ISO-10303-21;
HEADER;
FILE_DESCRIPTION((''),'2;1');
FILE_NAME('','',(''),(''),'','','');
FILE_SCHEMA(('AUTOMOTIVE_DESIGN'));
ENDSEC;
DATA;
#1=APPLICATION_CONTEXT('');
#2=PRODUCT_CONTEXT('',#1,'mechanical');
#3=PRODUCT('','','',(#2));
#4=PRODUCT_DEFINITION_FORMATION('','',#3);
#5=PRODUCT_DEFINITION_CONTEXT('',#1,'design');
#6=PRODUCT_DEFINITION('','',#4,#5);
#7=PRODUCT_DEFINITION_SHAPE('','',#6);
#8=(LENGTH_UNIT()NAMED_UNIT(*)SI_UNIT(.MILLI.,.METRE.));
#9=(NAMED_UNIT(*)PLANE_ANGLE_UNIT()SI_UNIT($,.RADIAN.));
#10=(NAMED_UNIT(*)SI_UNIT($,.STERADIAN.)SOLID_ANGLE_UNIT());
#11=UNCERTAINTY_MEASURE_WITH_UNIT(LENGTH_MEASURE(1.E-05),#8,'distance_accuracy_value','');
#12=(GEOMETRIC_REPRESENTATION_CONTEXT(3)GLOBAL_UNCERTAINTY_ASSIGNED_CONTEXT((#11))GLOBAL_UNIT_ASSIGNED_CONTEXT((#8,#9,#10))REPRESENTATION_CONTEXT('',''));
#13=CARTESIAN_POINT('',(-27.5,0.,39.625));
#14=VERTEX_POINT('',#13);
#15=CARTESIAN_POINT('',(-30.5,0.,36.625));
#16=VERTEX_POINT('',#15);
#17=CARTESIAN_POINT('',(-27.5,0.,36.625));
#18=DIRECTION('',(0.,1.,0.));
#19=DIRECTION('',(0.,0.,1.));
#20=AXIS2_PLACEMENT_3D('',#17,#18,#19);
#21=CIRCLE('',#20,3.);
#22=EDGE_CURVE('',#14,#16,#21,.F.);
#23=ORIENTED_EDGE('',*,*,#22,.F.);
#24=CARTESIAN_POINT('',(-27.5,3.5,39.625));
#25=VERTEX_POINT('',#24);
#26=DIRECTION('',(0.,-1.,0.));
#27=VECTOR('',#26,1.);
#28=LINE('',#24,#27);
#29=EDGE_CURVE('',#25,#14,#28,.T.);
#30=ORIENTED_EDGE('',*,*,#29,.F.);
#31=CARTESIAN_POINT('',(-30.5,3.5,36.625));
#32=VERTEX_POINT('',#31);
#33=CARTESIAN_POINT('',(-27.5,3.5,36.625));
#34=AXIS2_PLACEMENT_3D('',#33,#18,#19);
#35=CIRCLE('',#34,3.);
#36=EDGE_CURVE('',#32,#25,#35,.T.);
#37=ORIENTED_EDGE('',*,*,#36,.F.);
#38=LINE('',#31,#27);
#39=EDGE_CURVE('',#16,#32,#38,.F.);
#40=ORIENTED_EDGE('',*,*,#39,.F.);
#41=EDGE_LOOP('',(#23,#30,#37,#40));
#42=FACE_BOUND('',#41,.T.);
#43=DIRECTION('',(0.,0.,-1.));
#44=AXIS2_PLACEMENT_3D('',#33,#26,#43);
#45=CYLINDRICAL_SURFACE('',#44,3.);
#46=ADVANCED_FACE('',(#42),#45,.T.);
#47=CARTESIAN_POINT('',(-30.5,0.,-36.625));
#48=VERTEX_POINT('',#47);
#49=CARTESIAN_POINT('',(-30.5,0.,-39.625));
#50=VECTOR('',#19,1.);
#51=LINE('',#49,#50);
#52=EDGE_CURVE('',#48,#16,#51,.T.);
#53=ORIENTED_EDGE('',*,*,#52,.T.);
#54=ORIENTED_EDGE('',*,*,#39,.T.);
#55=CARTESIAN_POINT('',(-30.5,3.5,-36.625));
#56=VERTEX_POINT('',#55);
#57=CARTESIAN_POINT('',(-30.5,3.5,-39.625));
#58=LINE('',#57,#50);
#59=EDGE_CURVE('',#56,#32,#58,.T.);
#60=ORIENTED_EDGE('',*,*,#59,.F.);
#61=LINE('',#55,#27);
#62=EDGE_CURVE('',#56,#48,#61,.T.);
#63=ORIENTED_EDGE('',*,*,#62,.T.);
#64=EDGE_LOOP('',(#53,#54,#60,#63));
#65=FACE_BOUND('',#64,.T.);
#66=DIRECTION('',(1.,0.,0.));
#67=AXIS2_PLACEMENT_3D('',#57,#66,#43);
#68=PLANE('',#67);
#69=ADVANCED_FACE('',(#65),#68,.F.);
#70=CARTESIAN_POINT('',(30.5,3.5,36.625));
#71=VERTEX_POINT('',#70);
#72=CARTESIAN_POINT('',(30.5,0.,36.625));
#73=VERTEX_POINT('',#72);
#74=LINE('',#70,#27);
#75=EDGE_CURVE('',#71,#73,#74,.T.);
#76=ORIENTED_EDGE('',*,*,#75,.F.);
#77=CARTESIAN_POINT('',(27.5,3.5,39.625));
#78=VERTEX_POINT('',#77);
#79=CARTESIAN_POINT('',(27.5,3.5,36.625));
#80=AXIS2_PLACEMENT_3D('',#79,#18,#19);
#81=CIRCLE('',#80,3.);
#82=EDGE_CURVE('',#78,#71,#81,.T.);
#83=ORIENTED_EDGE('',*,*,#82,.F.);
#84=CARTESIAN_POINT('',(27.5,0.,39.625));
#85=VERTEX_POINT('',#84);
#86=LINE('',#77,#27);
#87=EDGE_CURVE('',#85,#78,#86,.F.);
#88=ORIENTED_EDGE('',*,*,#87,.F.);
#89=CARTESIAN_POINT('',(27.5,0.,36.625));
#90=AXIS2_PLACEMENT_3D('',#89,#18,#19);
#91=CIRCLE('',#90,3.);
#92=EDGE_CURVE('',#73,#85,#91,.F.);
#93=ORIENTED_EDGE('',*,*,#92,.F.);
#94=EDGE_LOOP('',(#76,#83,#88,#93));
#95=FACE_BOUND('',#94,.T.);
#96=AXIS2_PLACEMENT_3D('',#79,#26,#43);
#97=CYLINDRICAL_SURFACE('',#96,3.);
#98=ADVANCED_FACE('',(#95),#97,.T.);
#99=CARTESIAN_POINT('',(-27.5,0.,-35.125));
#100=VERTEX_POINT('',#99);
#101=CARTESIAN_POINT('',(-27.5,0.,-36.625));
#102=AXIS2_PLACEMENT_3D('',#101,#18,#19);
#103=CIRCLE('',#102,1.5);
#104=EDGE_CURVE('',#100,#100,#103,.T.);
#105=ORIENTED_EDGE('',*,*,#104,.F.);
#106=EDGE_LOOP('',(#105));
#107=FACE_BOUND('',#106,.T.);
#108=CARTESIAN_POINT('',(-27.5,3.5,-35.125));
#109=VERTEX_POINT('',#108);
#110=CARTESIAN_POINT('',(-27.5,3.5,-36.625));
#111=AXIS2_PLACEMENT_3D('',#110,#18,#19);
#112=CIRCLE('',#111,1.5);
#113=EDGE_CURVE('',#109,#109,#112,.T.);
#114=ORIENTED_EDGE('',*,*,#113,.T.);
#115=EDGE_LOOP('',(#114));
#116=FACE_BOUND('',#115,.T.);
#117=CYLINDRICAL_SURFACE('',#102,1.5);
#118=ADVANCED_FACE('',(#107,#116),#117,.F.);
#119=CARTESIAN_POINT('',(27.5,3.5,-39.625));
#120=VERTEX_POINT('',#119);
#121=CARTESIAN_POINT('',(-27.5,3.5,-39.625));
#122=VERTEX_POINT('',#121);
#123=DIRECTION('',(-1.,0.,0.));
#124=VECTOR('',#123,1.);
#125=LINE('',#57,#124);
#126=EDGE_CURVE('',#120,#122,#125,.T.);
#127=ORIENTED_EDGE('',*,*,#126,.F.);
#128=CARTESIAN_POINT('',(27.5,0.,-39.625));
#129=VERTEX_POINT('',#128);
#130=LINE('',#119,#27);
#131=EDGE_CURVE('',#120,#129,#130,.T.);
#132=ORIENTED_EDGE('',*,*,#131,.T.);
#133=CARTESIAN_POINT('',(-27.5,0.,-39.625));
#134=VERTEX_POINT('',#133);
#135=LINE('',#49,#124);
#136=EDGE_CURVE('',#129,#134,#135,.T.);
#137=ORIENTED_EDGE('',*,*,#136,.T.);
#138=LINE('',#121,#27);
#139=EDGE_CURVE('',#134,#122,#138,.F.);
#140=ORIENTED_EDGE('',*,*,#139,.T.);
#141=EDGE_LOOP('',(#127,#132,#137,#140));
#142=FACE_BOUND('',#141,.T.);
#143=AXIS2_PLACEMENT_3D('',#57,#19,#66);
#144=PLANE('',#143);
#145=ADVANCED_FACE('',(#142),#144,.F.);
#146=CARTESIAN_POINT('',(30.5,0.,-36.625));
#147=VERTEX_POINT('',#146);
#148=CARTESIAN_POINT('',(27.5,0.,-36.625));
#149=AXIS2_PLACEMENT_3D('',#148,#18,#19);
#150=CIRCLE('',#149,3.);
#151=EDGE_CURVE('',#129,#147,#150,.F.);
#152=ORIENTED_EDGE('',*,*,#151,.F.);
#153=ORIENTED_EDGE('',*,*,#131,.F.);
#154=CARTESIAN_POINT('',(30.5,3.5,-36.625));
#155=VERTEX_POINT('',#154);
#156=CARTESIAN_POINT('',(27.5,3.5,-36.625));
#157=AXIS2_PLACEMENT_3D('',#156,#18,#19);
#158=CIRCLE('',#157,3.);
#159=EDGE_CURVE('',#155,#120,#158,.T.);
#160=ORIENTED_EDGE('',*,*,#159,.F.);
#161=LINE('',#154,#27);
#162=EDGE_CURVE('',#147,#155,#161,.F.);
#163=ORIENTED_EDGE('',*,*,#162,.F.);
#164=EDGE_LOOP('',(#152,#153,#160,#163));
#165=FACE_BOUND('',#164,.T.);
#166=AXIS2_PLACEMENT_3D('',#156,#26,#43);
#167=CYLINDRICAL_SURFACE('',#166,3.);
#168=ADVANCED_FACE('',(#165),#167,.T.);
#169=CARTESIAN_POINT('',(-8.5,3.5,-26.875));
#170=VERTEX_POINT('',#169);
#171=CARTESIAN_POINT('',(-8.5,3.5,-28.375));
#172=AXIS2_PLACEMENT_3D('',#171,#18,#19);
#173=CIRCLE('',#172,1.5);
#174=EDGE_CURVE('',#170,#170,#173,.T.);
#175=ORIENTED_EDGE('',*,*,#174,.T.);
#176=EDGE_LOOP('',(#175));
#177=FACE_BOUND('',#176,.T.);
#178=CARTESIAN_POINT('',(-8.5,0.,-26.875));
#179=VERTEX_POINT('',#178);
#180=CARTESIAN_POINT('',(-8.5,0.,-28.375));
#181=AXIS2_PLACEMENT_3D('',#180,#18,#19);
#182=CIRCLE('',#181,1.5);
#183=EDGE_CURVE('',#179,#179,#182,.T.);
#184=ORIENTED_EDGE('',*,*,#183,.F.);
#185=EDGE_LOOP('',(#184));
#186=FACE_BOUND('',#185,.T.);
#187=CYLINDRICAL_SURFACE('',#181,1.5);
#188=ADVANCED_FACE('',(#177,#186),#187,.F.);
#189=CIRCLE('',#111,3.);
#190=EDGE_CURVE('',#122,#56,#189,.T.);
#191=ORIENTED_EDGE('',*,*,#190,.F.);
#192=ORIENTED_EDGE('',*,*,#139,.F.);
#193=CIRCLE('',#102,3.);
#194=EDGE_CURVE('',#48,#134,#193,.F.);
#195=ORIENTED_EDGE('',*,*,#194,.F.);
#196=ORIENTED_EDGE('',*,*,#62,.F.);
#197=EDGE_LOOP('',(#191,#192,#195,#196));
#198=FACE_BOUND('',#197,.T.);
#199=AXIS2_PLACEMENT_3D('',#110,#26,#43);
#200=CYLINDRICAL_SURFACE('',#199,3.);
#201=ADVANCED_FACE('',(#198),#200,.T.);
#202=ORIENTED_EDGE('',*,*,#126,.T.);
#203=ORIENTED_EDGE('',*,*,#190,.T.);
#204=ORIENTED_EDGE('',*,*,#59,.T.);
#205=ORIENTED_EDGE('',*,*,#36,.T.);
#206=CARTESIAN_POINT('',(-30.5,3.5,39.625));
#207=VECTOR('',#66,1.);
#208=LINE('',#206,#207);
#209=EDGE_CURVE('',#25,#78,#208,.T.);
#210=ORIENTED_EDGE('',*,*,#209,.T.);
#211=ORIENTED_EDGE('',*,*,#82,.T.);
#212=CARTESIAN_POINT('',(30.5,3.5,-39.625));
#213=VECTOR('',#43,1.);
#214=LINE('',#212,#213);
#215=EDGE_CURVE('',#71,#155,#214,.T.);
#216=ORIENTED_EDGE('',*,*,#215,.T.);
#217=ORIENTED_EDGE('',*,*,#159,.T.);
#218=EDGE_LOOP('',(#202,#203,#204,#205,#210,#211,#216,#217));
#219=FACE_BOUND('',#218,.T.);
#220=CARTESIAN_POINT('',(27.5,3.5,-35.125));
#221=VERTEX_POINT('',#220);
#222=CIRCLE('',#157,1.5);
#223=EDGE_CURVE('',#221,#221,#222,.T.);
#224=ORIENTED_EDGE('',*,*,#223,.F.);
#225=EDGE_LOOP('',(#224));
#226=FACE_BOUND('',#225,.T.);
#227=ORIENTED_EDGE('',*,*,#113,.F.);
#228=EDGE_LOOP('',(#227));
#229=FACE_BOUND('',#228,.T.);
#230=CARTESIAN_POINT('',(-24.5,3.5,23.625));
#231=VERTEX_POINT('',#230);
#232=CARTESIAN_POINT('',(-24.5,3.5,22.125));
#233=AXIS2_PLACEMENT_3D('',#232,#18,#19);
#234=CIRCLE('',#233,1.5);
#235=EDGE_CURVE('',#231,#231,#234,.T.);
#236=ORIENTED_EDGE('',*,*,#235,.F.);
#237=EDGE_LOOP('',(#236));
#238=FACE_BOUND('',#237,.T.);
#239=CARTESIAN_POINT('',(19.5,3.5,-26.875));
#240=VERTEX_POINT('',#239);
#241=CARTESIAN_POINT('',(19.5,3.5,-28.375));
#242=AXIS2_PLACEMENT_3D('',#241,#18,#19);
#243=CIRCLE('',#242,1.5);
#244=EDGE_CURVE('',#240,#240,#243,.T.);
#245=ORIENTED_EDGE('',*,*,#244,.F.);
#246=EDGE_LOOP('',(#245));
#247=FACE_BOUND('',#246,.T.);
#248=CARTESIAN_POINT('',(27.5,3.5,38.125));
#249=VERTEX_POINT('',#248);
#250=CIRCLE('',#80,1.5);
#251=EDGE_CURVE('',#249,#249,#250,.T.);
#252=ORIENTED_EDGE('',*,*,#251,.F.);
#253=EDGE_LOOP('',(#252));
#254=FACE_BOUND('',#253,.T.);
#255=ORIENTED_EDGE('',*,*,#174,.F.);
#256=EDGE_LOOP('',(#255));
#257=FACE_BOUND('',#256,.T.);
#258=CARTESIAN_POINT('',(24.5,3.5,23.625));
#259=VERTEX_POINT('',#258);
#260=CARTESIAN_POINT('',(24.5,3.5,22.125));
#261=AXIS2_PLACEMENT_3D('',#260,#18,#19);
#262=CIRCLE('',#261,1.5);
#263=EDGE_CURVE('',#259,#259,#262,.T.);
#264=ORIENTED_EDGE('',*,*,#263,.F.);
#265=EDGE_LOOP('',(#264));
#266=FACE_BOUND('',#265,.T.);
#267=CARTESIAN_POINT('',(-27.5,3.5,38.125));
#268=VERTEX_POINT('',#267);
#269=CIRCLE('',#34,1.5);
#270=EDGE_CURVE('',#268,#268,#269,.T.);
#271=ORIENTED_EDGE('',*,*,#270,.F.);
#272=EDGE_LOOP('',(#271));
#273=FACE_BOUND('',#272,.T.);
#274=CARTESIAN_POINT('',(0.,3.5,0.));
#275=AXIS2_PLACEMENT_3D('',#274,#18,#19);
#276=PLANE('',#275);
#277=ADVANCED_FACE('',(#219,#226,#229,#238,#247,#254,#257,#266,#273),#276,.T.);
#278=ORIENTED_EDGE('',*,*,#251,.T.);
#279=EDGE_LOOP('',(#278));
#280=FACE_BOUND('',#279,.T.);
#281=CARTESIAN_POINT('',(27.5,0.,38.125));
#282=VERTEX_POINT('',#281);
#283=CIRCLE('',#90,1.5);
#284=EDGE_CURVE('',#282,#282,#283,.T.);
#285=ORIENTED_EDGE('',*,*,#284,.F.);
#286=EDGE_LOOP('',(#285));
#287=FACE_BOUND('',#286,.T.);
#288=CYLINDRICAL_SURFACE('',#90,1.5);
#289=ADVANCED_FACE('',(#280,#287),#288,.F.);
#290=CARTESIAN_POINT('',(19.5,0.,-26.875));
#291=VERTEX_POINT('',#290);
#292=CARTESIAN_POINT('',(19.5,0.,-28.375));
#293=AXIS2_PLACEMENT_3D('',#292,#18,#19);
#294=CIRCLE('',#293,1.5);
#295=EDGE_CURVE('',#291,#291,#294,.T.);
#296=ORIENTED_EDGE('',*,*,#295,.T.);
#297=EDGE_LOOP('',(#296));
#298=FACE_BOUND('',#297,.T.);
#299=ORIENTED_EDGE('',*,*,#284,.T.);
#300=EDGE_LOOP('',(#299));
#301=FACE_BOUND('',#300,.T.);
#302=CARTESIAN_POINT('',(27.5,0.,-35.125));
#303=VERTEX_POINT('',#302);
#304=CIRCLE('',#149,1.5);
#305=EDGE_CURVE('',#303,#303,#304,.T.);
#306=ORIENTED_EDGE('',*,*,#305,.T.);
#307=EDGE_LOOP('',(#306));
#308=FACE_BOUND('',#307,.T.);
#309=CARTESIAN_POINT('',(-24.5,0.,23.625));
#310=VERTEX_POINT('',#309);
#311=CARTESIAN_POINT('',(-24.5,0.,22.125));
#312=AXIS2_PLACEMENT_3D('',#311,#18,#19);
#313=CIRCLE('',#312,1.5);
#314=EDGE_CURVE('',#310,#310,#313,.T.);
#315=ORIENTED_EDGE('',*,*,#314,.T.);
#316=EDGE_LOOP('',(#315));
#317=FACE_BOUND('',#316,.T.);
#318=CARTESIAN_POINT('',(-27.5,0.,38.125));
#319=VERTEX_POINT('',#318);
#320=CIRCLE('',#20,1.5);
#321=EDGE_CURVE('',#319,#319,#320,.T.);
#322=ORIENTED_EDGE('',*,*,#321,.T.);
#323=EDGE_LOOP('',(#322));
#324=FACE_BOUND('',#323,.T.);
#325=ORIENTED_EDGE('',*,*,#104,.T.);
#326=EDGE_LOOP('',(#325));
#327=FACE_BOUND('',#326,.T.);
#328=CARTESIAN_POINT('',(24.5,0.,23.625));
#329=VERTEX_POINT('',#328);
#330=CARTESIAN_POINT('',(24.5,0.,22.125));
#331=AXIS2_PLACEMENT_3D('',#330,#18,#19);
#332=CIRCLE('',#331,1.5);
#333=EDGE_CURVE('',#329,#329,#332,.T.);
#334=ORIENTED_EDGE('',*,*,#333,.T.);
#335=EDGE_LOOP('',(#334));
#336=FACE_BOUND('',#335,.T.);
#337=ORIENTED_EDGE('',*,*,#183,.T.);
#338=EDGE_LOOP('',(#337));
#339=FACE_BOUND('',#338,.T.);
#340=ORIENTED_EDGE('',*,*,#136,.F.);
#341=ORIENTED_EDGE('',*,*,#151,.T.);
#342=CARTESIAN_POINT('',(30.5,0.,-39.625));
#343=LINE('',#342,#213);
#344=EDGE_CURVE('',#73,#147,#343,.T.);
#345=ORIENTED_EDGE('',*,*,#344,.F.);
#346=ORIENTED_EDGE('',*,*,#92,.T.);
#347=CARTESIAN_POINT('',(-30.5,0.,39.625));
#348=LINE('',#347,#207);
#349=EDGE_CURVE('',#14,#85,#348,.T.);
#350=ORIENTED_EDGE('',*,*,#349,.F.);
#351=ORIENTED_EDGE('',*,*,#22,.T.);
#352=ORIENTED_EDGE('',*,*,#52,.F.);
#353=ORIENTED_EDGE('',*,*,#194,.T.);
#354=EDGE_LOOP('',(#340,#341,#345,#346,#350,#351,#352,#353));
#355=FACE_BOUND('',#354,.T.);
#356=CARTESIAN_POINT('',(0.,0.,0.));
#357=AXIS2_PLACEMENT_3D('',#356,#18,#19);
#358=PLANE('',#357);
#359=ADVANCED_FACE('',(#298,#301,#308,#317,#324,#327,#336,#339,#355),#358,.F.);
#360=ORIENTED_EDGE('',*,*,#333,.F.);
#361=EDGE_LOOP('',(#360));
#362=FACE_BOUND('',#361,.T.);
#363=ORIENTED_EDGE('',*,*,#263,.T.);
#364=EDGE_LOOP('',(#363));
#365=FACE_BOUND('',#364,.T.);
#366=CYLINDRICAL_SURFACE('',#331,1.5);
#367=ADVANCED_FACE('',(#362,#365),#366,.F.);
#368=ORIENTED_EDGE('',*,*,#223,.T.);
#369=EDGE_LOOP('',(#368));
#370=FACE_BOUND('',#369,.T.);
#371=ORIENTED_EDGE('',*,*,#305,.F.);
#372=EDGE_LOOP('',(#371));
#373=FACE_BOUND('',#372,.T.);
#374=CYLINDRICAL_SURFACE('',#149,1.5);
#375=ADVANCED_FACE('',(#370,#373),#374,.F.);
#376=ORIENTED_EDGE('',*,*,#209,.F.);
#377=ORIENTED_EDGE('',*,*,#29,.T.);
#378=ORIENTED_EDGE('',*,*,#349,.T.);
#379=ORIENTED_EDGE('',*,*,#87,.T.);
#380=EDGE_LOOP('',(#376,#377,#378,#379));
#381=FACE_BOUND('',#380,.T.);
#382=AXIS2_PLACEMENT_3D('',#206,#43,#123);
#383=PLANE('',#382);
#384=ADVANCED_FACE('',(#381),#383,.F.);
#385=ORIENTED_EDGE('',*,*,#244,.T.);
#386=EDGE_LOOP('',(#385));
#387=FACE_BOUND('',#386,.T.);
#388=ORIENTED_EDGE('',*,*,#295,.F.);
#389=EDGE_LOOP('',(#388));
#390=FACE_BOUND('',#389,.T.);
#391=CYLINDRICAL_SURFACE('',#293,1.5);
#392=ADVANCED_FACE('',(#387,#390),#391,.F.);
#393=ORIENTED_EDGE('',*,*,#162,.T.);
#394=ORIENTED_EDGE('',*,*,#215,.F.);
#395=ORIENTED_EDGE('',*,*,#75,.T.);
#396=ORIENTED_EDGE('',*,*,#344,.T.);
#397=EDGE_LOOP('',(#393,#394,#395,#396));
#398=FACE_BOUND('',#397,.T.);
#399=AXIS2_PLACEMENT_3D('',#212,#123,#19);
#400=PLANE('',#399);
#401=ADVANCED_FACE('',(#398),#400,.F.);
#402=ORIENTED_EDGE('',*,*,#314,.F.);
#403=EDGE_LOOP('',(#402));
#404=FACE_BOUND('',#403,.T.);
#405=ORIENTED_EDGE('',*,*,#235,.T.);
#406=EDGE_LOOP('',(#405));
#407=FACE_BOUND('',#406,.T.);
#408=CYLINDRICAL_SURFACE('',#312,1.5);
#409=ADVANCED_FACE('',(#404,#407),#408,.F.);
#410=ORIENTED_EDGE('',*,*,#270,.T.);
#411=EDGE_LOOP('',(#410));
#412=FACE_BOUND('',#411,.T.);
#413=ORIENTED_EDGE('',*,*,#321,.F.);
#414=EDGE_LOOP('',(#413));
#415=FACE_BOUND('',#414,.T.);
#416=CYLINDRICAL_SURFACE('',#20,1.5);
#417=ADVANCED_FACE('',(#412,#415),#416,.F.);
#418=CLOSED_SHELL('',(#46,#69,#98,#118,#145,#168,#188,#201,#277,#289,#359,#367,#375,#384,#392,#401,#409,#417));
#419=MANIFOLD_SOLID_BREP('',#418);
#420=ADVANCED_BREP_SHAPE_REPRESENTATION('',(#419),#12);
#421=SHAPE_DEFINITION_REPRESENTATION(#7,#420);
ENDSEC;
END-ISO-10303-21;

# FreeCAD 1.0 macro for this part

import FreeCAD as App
import Part
import Sketcher

V = App.Vector


def edges_at(feature, points):
    """Names of the edges that pass closest to the given points."""
    edges = feature.Shape.Edges
    near = lambda p: min(range(len(edges)), key=lambda i: edges[i].distToShape(Part.Vertex(*p))[0])
    return sorted({f"Edge{near(p) + 1}" for p in points})


def add_polygon(sketch, points):
    """Adds a closed chain of lines whose ends are joined by coincident constraints."""
    first, n = sketch.GeometryCount, len(points)
    for a, b in zip(points, points[1:] + points[:1]):
        sketch.addGeometry(Part.LineSegment(App.Vector(*a, 0), App.Vector(*b, 0)), False)
    for i in range(n):
        sketch.addConstraint(Sketcher.Constraint("Coincident", first + i, 2, first + (i + 1) % n, 1))

doc = App.newDocument("Part")
body = doc.addObject("PartDesign::Body", "Body")

# Sketch on XZ plane
sketch1 = body.newObject("Sketcher::SketchObject", "Sketch")
sketch1.AttachmentSupport = (doc.getObject("XZ_Plane"), [""])
sketch1.MapMode = "FlatFace"
add_polygon(sketch1, [(-30, -40), (-30, 40), (30, 40), (30, -40)])  # lines 0-3
sketch1.addConstraint(Sketcher.Constraint("Vertical", 0))
sketch1.addConstraint(Sketcher.Constraint("Horizontal", 1))
sketch1.addConstraint(Sketcher.Constraint("Vertical", 2))
sketch1.addConstraint(Sketcher.Constraint("Horizontal", 3))
sketch1.addConstraint(Sketcher.Constraint("Symmetric", 0, 2, 2, 2, -1, 1))
sketch1.addConstraint(Sketcher.Constraint("DistanceX", 1, 1, 1, 2, 61.0))
sketch1.addConstraint(Sketcher.Constraint("DistanceY", 0, 1, 0, 2, 79.25))
pad1 = body.newObject("PartDesign::Pad", "Pad")
pad1.Profile = sketch1
pad1.Length = 3.5
pad1.Reversed = True

# Sketch on XZ plane
sketch2 = body.newObject("Sketcher::SketchObject", "Sketch001")
sketch2.AttachmentSupport = (doc.getObject("XZ_Plane"), [""])
sketch2.MapMode = "FlatFace"
sketch2.AttachmentOffset = App.Placement(V(0, 0, -3.5), App.Rotation())
sketch2.addGeometry(Part.Circle(V(-27.5, -36.6, 0), V(0, 0, 1), 1.5), False)
sketch2.addGeometry(Part.Circle(V(27.5, -36.6, 0), V(0, 0, 1), 1.5), False)
sketch2.addGeometry(Part.Circle(V(-27.5, 36.6, 0), V(0, 0, 1), 1.5), False)
sketch2.addGeometry(Part.Circle(V(27.5, 36.6, 0), V(0, 0, 1), 1.5), False)
sketch2.addConstraint(Sketcher.Constraint("Equal", 0, 1))
sketch2.addConstraint(Sketcher.Constraint("Equal", 1, 2))
sketch2.addConstraint(Sketcher.Constraint("Equal", 2, 3))
sketch2.addConstraint(Sketcher.Constraint("Symmetric", 1, 3, 2, 3, -1, 1))
sketch2.addConstraint(Sketcher.Constraint("Symmetric", 0, 3, 3, 3, -1, 1))
sketch2.addConstraint(Sketcher.Constraint("Symmetric", 0, 3, 1, 3, -2))
sketch2.addConstraint(Sketcher.Constraint("Diameter", 0, 3.0))
sketch2.addConstraint(Sketcher.Constraint("DistanceX", 0, 3, 1, 3, 55.0))
sketch2.addConstraint(Sketcher.Constraint("DistanceY", 0, 3, 2, 3, 73.25))
pocket1 = body.newObject("PartDesign::Pocket", "Pocket")
pocket1.Profile = sketch2
pocket1.Length = 3.5
pocket1.Reversed = True
doc.recompute()

fillet = body.newObject("PartDesign::Fillet", "Fillet")
fillet.Base = (pocket1, edges_at(pocket1, [
    (30.5, 1.75, 39.625),
    (-30.5, 1.75, 39.625),
    (-30.5, 1.75, -39.625),
    (30.5, 1.75, -39.625),
]))
fillet.Radius = 3

# Sketch on XZ plane
sketch3 = body.newObject("Sketcher::SketchObject", "Sketch002")
sketch3.AttachmentSupport = (doc.getObject("XZ_Plane"), [""])
sketch3.MapMode = "FlatFace"
sketch3.AttachmentOffset = App.Placement(V(0, 0, -3.5), App.Rotation())
sketch3.addGeometry(Part.Circle(V(-24.5, 22.1, 0), V(0, 0, 1), 1.5), False)
sketch3.addGeometry(Part.Circle(V(24.5, 22.1, 0), V(0, 0, 1), 1.5), False)
sketch3.addGeometry(Part.Circle(V(19.5, -28.4, 0), V(0, 0, 1), 1.5), False)
sketch3.addGeometry(Part.Circle(V(-8.5, -28.4, 0), V(0, 0, 1), 1.5), False)
sketch3.addConstraint(Sketcher.Constraint("Equal", 0, 1))
sketch3.addConstraint(Sketcher.Constraint("Equal", 1, 2))
sketch3.addConstraint(Sketcher.Constraint("Equal", 2, 3))
sketch3.addConstraint(Sketcher.Constraint("Symmetric", 0, 3, 1, 3, -2))
sketch3.addConstraint(Sketcher.Constraint("Horizontal", 2, 3, 3, 3))
sketch3.addConstraint(Sketcher.Constraint("Diameter", 0, 3.0))
sketch3.addConstraint(Sketcher.Constraint("DistanceX", 0, 3, 1, 3, 49.0))
sketch3.addConstraint(Sketcher.Constraint("DistanceX", 2, 3, 1, 3, 5.0))
sketch3.addConstraint(Sketcher.Constraint("DistanceX", 3, 3, 2, 3, 28.0))
sketch3.addConstraint(Sketcher.Constraint("DistanceY", 2, 3, 1, 3, 50.5))
sketch3.addConstraint(Sketcher.Constraint("DistanceY", -1, 1, 0, 3, 22.125))
pocket2 = body.newObject("PartDesign::Pocket", "Pocket001")
pocket2.Profile = sketch3
pocket2.Length = 3.5
pocket2.Reversed = True

doc.recompute()
